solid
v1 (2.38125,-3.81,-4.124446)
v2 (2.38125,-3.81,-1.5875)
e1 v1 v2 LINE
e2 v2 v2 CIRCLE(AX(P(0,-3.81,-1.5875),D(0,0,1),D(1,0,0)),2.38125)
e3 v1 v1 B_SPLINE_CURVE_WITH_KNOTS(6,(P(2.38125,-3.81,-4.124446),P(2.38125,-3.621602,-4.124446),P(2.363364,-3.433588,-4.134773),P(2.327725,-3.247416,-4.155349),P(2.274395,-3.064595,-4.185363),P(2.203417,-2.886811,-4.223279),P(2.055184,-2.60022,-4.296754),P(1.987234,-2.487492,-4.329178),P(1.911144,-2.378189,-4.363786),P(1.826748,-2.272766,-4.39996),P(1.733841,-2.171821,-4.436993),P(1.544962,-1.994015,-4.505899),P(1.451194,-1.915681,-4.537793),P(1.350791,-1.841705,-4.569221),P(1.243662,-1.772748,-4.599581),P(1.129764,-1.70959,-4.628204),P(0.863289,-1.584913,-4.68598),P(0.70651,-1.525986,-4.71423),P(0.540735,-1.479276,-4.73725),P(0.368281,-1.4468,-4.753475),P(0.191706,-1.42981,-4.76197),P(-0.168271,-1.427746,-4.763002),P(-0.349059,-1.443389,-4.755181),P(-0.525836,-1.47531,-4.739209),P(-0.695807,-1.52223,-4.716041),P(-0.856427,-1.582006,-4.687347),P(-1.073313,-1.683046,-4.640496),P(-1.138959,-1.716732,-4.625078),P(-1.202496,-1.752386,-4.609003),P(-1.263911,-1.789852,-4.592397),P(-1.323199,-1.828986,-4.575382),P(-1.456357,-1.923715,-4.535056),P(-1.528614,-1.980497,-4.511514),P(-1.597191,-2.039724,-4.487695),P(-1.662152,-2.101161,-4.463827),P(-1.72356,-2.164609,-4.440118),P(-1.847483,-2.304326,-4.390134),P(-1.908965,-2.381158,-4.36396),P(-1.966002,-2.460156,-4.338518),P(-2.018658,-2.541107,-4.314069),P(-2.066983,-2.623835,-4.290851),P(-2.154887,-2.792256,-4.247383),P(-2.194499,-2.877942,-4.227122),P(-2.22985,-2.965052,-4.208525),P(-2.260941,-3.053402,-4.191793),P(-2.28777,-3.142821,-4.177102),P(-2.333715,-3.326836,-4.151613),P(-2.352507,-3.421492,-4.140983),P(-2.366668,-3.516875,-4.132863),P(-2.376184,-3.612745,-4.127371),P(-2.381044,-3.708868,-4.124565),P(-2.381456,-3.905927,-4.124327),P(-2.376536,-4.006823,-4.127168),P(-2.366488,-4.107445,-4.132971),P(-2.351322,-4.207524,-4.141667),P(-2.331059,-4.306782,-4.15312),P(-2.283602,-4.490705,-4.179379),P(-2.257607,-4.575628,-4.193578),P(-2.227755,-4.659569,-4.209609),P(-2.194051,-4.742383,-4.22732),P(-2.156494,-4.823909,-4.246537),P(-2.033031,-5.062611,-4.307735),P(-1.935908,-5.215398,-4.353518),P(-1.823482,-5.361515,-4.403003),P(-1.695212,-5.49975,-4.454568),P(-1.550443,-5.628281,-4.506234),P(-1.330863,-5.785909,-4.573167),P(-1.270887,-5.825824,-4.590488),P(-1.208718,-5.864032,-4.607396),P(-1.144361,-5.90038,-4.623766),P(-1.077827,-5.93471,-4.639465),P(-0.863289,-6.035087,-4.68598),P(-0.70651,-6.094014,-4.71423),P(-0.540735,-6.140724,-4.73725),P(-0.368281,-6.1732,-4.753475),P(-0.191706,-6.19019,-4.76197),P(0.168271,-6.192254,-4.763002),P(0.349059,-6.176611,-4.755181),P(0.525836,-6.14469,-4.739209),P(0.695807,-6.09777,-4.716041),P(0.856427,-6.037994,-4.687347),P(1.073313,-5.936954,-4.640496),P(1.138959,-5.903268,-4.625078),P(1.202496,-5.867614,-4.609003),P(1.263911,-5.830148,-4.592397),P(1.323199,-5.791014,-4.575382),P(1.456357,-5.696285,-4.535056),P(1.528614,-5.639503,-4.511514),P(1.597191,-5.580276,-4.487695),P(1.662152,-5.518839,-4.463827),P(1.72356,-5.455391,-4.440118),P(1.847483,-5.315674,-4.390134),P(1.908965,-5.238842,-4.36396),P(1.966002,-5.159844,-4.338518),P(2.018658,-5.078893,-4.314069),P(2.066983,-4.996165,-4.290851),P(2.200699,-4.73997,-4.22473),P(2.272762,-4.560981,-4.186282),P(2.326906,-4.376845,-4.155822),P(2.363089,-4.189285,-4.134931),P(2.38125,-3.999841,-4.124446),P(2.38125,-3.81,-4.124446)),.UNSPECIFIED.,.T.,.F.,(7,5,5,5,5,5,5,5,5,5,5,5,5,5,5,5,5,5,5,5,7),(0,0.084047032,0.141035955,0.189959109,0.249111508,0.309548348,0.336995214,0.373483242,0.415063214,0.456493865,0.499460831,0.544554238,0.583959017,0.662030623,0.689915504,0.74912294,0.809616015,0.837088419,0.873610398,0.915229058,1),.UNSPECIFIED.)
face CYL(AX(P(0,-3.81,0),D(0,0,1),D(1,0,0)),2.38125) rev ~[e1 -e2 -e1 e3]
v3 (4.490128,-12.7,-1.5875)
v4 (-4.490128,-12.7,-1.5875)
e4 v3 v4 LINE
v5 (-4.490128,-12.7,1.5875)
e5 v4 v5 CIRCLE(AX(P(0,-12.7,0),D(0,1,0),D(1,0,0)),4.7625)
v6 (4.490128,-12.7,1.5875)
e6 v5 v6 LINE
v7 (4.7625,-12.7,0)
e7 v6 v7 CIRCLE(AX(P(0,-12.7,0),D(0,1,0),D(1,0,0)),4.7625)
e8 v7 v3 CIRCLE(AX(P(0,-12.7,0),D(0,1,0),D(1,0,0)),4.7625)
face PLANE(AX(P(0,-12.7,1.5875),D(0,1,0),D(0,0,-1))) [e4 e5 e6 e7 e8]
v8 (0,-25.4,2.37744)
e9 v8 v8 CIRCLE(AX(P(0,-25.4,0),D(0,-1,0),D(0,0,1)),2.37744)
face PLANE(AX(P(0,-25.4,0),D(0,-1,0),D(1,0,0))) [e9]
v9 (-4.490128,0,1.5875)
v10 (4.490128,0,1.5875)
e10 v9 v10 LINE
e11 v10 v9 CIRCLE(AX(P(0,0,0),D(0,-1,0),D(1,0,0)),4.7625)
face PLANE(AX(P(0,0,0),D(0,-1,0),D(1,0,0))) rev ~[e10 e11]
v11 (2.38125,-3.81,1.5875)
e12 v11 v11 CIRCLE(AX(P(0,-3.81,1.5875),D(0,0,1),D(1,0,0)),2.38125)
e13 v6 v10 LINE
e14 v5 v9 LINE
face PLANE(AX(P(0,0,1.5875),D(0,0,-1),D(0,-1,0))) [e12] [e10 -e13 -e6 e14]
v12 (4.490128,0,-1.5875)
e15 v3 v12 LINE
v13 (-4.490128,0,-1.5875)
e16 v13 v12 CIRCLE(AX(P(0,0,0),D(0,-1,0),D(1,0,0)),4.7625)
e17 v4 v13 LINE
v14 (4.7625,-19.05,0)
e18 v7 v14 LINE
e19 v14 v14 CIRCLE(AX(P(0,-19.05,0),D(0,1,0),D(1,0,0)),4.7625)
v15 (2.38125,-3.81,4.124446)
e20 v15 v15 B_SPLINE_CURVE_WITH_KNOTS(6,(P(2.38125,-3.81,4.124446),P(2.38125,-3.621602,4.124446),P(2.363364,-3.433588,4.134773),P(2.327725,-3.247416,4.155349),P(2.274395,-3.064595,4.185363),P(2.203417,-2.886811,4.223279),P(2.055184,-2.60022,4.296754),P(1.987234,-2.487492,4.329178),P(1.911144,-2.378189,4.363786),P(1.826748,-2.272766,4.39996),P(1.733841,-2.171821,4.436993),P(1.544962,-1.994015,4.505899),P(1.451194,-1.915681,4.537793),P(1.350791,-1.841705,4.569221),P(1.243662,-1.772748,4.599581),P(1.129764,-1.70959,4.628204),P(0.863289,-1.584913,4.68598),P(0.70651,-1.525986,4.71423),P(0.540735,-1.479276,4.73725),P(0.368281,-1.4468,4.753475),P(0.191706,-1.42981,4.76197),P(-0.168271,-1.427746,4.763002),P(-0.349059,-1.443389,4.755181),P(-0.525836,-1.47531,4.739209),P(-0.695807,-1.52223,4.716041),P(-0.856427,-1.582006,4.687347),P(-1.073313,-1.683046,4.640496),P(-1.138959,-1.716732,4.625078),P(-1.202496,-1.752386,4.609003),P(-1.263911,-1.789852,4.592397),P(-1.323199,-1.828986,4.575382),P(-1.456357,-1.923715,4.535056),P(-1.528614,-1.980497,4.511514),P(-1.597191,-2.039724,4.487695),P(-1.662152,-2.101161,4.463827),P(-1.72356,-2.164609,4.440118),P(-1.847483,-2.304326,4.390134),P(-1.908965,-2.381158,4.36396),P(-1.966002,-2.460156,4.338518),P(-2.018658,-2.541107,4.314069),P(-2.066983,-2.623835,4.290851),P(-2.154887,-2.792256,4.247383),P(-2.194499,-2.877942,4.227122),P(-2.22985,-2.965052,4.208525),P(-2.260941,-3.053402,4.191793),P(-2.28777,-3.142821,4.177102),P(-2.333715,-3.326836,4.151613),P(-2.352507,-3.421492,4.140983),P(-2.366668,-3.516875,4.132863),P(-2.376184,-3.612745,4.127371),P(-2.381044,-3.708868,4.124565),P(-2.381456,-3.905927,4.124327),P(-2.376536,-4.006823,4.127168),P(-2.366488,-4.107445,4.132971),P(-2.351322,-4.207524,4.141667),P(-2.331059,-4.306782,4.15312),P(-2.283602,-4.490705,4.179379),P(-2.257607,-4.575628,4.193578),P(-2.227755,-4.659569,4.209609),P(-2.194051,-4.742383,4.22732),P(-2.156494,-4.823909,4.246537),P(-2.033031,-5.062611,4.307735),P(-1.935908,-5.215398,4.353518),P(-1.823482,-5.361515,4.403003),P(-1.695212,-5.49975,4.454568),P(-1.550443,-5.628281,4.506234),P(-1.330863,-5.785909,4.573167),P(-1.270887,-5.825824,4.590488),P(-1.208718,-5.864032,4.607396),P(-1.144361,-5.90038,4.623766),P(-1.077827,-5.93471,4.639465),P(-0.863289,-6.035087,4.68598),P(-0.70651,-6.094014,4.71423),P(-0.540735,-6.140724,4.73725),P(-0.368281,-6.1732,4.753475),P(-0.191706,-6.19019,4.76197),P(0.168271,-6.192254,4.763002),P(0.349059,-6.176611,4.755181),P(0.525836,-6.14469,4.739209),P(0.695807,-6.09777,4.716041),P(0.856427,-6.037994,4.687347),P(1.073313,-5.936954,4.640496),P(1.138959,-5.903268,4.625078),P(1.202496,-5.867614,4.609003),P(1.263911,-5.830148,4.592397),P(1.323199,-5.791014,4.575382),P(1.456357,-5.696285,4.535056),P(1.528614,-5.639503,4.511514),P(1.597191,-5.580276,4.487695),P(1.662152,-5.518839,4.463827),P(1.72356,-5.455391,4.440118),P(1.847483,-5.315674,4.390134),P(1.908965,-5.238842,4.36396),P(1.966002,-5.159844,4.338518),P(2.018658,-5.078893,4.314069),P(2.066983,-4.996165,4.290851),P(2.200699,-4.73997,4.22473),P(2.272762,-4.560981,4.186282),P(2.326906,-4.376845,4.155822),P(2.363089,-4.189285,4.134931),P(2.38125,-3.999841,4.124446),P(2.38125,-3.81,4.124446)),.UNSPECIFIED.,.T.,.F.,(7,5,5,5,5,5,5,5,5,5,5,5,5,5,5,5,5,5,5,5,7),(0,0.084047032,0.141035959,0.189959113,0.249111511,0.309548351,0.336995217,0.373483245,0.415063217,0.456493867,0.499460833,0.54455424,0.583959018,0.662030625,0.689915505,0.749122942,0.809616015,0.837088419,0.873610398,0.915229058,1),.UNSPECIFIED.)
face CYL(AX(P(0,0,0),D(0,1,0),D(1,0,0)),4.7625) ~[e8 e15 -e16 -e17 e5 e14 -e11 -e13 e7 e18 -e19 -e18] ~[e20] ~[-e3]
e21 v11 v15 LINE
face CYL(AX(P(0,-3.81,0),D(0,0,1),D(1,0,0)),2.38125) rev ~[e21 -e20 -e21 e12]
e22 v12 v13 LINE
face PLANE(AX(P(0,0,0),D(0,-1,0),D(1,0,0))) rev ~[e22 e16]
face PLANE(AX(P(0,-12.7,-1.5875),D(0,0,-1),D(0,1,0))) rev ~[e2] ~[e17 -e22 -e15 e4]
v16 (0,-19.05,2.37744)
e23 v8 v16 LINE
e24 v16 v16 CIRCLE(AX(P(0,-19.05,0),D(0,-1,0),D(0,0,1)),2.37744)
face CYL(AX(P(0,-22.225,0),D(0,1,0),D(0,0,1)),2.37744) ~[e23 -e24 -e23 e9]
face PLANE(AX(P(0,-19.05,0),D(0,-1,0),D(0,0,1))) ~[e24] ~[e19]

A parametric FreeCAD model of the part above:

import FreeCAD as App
import Part
import Sketcher

V = App.Vector
Q = App.Units.Quantity


def add_polygon(sketch, points):
    """Adds a closed chain of lines whose ends are joined by coincident constraints."""
    first, n = sketch.GeometryCount, len(points)
    for a, b in zip(points, points[1:] + points[:1]):
        sketch.addGeometry(Part.LineSegment(App.Vector(*a, 0), App.Vector(*b, 0)), False)
    for i in range(n):
        sketch.addConstraint(Sketcher.Constraint("Coincident", first + i, 2, first + (i + 1) % n, 1))

doc = App.newDocument("Part")
params = doc.addObject("Spreadsheet::Sheet", "Params")
for row, (alias, value) in enumerate([
    ("sketch1_diameter", "0.375 in"),
    ("pad1_length", "1 in"),
    ("sketch2_width", "0.25 in"),
    ("groove_angle", "360 deg"),
    ("sketch3_width", "0.5 in"),
    ("sketch3_height", "0.125 in"),
    ("sketch4_diameter", "0.1875 in"),
    ("pocket2_length", "1 in"),
], start=1):
    params.set(f"A{row}", alias)
    params.set(f"B{row}", "=" + value)
    params.setAlias(f"B{row}", alias)

body = doc.addObject("PartDesign::Body", "Body")

sketch1 = body.newObject("Sketcher::SketchObject", "Sketch")
sketch1.AttachmentSupport = (doc.getObject("XZ_Plane"), [""])
sketch1.MapMode = "FlatFace"
sketch1.addGeometry(Part.Circle(V(0, 0, 0), V(0, 0, 1), 4.7625), False)
sketch1.addConstraint([
    Sketcher.Constraint("Coincident", 0, 3, -1, 1),
    Sketcher.Constraint("Diameter", 0, Q("0.375 in")),
])
sketch1.setExpression("Constraints[1]", "Params.sketch1_diameter")
pad1 = body.newObject("PartDesign::Pad", "Pad")
pad1.Profile = sketch1
pad1.setExpression("Length", "Params.pad1_length")

sketch2 = body.newObject("Sketcher::SketchObject", "Sketch001")
sketch2.AttachmentSupport = (doc.getObject("YZ_Plane"), [""])
sketch2.MapMode = "FlatFace"
add_polygon(sketch2, [(-25.4, 7.122667), (-25.4, 2.37744), (-19.05, 2.37744), (-19.05, 7.122667)])
sketch2.addConstraint([
    Sketcher.Constraint("Vertical", 0),
    Sketcher.Constraint("Horizontal", 1),
    Sketcher.Constraint("Vertical", 2),
    Sketcher.Constraint("Horizontal", 3),
    Sketcher.Constraint("DistanceX", 0, 2, -1, 1, Q("1 in")),
    Sketcher.Constraint("DistanceX", 1, 1, 1, 2, Q("0.25 in")),
    Sketcher.Constraint("DistanceY", -1, 1, 0, 2, Q("0.0936 in")),
    Sketcher.Constraint("DistanceY", 0, 2, 0, 1, 4.745227),
])
sketch2.setExpression("Constraints[9]", "Params.sketch2_width")
groove = body.newObject("PartDesign::Groove", "Groove")
groove.Profile = sketch2
groove.ReferenceAxis = (sketch2, ["H_Axis"])
groove.setExpression("Angle", "Params.groove_angle")

sketch3 = body.newObject("Sketcher::SketchObject", "Sketch002")
sketch3.AttachmentSupport = (doc.getObject("YZ_Plane"), [""])
sketch3.MapMode = "FlatFace"
add_polygon(sketch3, [(0, -1.5875), (0, 1.5875), (-12.7, 1.5875), (-12.7, -1.5875)])
sketch3.addConstraint([
    Sketcher.Constraint("Vertical", 0),
    Sketcher.Constraint("Horizontal", 1),
    Sketcher.Constraint("Vertical", 2),
    Sketcher.Constraint("Horizontal", 3),
    Sketcher.Constraint("Symmetric", 0, 2, 3, 2, -1, 1),
    Sketcher.Constraint("DistanceX", 1, 2, 1, 1, Q("0.5 in")),
    Sketcher.Constraint("DistanceY", 0, 1, 0, 2, Q("0.125 in")),
])
sketch3.setExpression("Constraints[9]", "Params.sketch3_width")
sketch3.setExpression("Constraints[10]", "Params.sketch3_height")
pocket1 = body.newObject("PartDesign::Pocket", "Pocket")
pocket1.Profile = sketch3
pocket1.Type = "ThroughAll"
pocket1.Midplane = True

sketch4 = body.newObject("Sketcher::SketchObject", "Sketch003")
sketch4.AttachmentSupport = (doc.getObject("XY_Plane"), [""])
sketch4.MapMode = "FlatFace"
sketch4.addGeometry(Part.Circle(V(0, -3.81, 0), V(0, 0, 1), 2.38125), False)
sketch4.addConstraint([
    Sketcher.Constraint("PointOnObject", 0, 3, -2),
    Sketcher.Constraint("Diameter", 0, Q("0.1875 in")),
    Sketcher.Constraint("DistanceY", 0, 3, -1, 1, Q("0.15 in")),
])
sketch4.setExpression("Constraints[1]", "Params.sketch4_diameter")
pocket2 = body.newObject("PartDesign::Pocket", "Pocket001")
pocket2.Profile = sketch4
pocket2.setExpression("Length", "Params.pocket2_length")
pocket2.Midplane = True

doc.recompute()
